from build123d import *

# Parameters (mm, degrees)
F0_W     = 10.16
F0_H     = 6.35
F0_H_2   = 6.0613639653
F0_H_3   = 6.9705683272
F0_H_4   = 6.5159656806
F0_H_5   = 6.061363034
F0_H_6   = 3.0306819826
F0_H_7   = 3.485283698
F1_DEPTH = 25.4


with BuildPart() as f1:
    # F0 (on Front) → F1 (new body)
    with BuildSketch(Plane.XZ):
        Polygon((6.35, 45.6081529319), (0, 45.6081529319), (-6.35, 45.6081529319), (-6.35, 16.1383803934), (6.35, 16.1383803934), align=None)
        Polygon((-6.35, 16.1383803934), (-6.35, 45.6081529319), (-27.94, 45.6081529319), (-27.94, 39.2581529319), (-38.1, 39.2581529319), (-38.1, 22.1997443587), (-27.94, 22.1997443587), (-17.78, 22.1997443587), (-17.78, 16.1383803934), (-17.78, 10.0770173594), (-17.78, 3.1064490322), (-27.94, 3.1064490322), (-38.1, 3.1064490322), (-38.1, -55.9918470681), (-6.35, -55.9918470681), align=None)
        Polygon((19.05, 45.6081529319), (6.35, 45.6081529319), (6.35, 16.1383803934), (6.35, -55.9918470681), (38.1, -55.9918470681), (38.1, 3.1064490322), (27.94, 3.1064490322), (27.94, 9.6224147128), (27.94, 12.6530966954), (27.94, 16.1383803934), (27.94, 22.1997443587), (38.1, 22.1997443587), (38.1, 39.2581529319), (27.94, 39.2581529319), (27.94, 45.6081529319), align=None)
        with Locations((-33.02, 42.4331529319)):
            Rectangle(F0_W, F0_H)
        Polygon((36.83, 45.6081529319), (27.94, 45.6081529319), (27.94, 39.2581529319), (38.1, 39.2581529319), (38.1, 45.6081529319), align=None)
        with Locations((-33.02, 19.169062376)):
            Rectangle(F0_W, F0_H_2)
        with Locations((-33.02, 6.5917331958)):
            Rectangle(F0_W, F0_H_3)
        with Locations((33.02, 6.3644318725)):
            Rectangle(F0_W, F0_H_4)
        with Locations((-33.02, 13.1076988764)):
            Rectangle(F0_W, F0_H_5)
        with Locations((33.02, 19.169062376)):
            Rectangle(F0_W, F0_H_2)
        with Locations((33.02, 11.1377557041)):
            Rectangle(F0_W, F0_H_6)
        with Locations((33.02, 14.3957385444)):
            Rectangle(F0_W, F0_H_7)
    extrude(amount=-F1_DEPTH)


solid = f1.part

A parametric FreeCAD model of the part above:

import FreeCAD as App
import Part
import Sketcher

V = App.Vector
Q = App.Units.Quantity

doc = App.newDocument("Part")
params = doc.addObject("Spreadsheet::Sheet", "Params")
for row, (alias, value) in enumerate([
    ("sketch1_width", "3 in"),
    ("sketch1_height", "4 in"),
    ("sketch1_width2", "0.5 in"),
    ("sketch1_width3", "0.4 in"),
    ("pad1_length", "1 in"),
], start=1):
    params.set(f"A{row}", alias)
    params.set(f"B{row}", "=" + value)
    params.setAlias(f"B{row}", alias)

body = doc.addObject("PartDesign::Body", "Body")

sketch1 = body.newObject("Sketcher::SketchObject", "Sketch")
sketch1.AttachmentSupport = (doc.getObject("XZ_Plane"), [""])
sketch1.MapMode = "FlatFace"
sketch1.addGeometry([
    Part.LineSegment(V(-38, -56, 0), V(-6, -56, 0)),
    Part.LineSegment(V(-6, -56, 0), V(-6, 16, 0)),
    Part.LineSegment(V(-6, 16, 0), V(6, 16, 0)),
    Part.LineSegment(V(6, 16, 0), V(6, -56, 0)),
    Part.LineSegment(V(6, -56, 0), V(38, -56, 0)),
    Part.LineSegment(V(38, -56, 0), V(38, 46, 0)),
    Part.LineSegment(V(38, 46, 0), V(-38, 46, 0)),
    Part.LineSegment(V(-38, 46, 0), V(-38, -56, 0)),
    Part.LineSegment(V(-28, 22, 0), V(-18, 22, 0)),
    Part.LineSegment(V(-18, 22, 0), V(-18, 3, 0)),
    Part.LineSegment(V(-18, 3, 0), V(-28, 3, 0)),
    Part.LineSegment(V(-28, 3, 0), V(-28, 22, 0)),
], False)
sketch1.addConstraint([
    Sketcher.Constraint("Coincident", 0, 2, 1, 1),
    Sketcher.Constraint("Coincident", 1, 2, 2, 1),
    Sketcher.Constraint("Coincident", 2, 2, 3, 1),
    Sketcher.Constraint("Coincident", 3, 2, 4, 1),
    Sketcher.Constraint("Coincident", 4, 2, 5, 1),
    Sketcher.Constraint("Coincident", 5, 2, 6, 1),
    Sketcher.Constraint("Coincident", 6, 2, 7, 1),
    Sketcher.Constraint("Coincident", 7, 2, 0, 1),
    Sketcher.Constraint("Coincident", 8, 2, 9, 1),
    Sketcher.Constraint("Coincident", 9, 2, 10, 1),
    Sketcher.Constraint("Coincident", 10, 2, 11, 1),
    Sketcher.Constraint("Coincident", 11, 2, 8, 1),
    Sketcher.Constraint("Horizontal", 0),
    Sketcher.Constraint("Vertical", 1),
    Sketcher.Constraint("Horizontal", 2),
    Sketcher.Constraint("Vertical", 3),
    Sketcher.Constraint("Horizontal", 4),
    Sketcher.Constraint("Vertical", 5),
    Sketcher.Constraint("Horizontal", 6),
    Sketcher.Constraint("Vertical", 7),
    Sketcher.Constraint("Horizontal", 8),
    Sketcher.Constraint("Vertical", 9),
    Sketcher.Constraint("Horizontal", 10),
    Sketcher.Constraint("Vertical", 11),
    Sketcher.Constraint("Symmetric", 0, 2, 3, 2, -2),
    Sketcher.Constraint("Equal", 0, 4),
    Sketcher.Constraint("DistanceX", 6, 2, 6, 1, Q("3 in")),
    Sketcher.Constraint("DistanceY", 5, 1, 5, 2, Q("4 in")),
    Sketcher.Constraint("DistanceX", 2, 1, 2, 2, Q("0.5 in")),
    Sketcher.Constraint("DistanceX", 8, 1, 8, 2, Q("0.4 in")),
    Sketcher.Constraint("DistanceX", 8, 2, -1, 1, Q("0.7 in")),
    Sketcher.Constraint("DistanceY", 1, 1, 1, 2, Q("72.130227 mm")),
    Sketcher.Constraint("DistanceY", 9, 2, 9, 1, Q("19.093295 mm")),
    Sketcher.Constraint("DistanceY", -1, 1, 1, 2, Q("16.13838 mm")),
    Sketcher.Constraint("DistanceY", -1, 1, 9, 2, Q("3.106449 mm")),
])
sketch1.setExpression("Constraints[26]", "Params.sketch1_width")
sketch1.setExpression("Constraints[27]", "Params.sketch1_height")
sketch1.setExpression("Constraints[28]", "Params.sketch1_width2")
sketch1.setExpression("Constraints[29]", "Params.sketch1_width3")
pad1 = body.newObject("PartDesign::Pad", "Pad")
pad1.Profile = sketch1
pad1.setExpression("Length", "Params.pad1_length")
pad1.Reversed = True

doc.recompute()
